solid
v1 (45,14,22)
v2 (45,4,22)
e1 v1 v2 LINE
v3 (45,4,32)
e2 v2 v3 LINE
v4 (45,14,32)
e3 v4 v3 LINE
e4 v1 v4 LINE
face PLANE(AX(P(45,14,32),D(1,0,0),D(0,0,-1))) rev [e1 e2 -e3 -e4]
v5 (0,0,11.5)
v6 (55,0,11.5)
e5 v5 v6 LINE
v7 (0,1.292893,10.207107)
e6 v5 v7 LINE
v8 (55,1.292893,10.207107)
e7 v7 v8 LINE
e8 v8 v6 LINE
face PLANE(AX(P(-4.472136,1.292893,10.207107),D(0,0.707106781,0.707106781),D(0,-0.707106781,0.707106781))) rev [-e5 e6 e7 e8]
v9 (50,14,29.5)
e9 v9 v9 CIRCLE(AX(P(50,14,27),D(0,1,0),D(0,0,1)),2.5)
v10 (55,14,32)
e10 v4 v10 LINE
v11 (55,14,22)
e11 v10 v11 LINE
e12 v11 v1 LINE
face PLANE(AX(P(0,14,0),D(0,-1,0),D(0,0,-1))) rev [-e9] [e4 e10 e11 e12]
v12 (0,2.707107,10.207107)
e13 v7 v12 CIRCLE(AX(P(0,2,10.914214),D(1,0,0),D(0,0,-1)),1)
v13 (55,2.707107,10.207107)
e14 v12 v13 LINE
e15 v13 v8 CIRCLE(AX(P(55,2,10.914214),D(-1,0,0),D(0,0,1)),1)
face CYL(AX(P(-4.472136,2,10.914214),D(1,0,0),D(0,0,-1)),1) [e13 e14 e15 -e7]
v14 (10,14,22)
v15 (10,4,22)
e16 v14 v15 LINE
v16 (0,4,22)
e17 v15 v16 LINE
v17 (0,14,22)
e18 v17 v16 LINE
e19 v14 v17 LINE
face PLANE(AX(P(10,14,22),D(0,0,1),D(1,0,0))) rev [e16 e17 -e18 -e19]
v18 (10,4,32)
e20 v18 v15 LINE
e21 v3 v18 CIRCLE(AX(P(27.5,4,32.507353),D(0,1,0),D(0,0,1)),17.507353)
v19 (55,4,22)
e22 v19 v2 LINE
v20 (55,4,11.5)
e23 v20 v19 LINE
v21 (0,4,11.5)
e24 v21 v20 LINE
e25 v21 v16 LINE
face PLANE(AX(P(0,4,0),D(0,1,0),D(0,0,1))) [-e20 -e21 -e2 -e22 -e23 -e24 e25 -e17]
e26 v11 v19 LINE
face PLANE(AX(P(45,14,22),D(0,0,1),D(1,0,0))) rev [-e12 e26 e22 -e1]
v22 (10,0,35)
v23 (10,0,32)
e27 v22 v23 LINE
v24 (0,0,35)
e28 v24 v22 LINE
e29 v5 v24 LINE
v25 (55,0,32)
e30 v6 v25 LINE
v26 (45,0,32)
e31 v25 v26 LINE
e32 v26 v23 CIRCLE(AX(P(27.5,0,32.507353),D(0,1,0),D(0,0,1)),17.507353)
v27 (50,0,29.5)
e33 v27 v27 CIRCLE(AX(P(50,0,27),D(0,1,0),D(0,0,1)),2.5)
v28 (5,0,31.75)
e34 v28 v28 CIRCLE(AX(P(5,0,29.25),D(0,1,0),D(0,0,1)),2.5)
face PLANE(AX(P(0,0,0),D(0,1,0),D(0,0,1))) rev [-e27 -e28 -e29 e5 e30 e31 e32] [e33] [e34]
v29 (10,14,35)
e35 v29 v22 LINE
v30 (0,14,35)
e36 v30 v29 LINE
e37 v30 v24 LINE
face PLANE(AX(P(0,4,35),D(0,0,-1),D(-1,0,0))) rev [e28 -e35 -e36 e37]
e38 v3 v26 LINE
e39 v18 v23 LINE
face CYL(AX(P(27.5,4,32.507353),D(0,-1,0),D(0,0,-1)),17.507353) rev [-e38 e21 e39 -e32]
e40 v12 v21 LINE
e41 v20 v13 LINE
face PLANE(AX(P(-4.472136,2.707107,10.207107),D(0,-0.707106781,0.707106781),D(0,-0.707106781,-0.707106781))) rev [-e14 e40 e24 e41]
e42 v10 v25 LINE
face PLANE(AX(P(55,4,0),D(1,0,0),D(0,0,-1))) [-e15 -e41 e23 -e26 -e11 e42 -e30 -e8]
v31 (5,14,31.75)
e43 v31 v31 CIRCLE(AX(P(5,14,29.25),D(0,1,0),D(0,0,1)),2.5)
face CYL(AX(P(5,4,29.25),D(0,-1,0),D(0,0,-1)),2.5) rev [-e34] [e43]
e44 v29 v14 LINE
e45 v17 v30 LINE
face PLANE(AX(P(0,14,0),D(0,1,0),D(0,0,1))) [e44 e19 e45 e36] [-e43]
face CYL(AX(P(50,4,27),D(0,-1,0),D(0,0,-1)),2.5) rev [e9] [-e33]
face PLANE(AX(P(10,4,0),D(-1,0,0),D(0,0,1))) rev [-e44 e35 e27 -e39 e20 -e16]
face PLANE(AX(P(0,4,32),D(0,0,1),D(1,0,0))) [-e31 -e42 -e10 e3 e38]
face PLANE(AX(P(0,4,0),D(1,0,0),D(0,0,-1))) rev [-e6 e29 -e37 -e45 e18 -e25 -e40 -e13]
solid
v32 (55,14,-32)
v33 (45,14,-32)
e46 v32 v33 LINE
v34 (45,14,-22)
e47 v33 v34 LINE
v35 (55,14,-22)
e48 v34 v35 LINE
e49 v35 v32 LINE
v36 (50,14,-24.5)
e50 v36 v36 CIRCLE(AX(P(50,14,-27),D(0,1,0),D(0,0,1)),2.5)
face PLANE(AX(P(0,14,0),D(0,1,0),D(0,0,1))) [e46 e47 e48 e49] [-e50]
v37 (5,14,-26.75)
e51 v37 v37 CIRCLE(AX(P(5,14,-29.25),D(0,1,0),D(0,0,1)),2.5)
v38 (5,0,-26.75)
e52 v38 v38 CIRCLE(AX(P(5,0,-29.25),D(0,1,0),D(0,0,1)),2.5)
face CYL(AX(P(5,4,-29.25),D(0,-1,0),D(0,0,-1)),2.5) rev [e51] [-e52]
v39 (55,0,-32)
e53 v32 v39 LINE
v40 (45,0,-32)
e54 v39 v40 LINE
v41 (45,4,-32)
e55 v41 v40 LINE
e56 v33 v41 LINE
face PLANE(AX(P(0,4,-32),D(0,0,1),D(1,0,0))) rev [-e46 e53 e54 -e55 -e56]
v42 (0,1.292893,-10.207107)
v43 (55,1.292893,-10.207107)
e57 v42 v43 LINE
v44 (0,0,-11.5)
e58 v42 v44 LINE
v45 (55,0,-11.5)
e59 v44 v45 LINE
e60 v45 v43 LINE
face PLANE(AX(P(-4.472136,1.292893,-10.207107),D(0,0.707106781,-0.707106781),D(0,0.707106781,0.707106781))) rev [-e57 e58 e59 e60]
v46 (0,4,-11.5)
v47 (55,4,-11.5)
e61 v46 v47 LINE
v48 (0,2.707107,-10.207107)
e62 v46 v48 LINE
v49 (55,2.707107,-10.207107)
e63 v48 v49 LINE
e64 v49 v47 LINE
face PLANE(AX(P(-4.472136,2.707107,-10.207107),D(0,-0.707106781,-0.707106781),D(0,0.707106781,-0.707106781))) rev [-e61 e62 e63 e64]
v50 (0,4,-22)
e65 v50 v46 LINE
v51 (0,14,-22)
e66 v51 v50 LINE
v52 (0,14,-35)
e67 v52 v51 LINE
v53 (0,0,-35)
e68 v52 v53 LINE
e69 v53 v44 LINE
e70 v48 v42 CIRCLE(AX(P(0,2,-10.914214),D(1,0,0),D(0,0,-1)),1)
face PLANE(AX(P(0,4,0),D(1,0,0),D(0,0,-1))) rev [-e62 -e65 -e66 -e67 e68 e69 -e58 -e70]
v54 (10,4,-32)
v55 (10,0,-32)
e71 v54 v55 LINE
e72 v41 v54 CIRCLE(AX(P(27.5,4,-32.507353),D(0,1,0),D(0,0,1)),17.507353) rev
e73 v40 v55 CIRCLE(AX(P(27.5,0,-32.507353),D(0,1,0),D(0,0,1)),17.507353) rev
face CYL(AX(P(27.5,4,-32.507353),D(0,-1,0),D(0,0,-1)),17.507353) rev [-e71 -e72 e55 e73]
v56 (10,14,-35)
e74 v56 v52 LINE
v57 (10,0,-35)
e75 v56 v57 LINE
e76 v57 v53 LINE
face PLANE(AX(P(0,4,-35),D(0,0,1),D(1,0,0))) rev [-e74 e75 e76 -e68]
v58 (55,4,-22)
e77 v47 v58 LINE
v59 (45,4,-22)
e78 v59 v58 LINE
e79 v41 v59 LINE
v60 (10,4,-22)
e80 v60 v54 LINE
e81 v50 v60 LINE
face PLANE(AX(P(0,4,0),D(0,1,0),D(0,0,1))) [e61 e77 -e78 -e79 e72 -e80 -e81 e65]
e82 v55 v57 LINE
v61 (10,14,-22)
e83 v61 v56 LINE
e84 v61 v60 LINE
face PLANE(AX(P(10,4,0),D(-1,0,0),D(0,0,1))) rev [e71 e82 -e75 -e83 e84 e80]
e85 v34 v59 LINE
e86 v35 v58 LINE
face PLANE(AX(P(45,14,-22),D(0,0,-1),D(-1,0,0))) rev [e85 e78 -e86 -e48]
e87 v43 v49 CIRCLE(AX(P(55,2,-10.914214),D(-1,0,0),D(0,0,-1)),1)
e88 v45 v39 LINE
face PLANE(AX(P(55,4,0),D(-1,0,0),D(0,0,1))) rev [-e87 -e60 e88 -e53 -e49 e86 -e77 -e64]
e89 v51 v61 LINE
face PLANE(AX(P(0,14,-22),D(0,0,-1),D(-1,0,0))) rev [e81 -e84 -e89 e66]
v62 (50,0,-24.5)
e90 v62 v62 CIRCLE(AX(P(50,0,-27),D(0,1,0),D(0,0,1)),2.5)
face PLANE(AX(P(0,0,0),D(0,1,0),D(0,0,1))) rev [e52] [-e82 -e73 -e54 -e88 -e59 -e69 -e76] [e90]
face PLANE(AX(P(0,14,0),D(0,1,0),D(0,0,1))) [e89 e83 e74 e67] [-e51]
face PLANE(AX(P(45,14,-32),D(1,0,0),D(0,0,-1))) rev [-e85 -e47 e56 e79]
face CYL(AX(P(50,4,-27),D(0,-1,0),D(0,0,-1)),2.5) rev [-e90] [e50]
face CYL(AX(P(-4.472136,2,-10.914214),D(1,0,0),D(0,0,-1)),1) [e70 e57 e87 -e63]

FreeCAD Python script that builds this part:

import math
import FreeCAD as App
import Part
import Sketcher

doc = App.newDocument("Part")
body = doc.addObject("PartDesign::Body", "Body")
body.AllowCompound = True

sketch1 = body.newObject("Sketcher::SketchObject", "Sketch")
sketch1.AttachmentSupport = (doc.getObject("XZ_Plane"), [""])
sketch1.MapMode = "FlatFace"
sketch1.addGeometry([
    Part.LineSegment(App.Vector(10, 10, 0), App.Vector(10, -10, 0)),
    Part.LineSegment(App.Vector(10, -10, 0), App.Vector(55, -10, 0)),
    Part.LineSegment(App.Vector(55, -10, 0), App.Vector(55, -32, 0)),
    Part.LineSegment(App.Vector(55, -32, 0), App.Vector(45, -32, 0)),
    Part.ArcOfCircle(Part.Circle(App.Vector(27.5, -32.5, 0), App.Vector(0, 0, 1), 17.5), math.radians(2), math.radians(178)),
    Part.LineSegment(App.Vector(10, -32, 0), App.Vector(10, -35, 0)),
    Part.LineSegment(App.Vector(10, -35, 0), App.Vector(0, -35, 0)),
    Part.LineSegment(App.Vector(0, -35, 0), App.Vector(0, 35, 0)),
    Part.LineSegment(App.Vector(0, 35, 0), App.Vector(10, 35, 0)),
    Part.LineSegment(App.Vector(10, 35, 0), App.Vector(10, 32, 0)),
    Part.ArcOfCircle(Part.Circle(App.Vector(27.5, 32.5, 0), App.Vector(0, 0, 1), 17.5), math.radians(-178), math.radians(-2)),
    Part.LineSegment(App.Vector(45, 32, 0), App.Vector(55, 32, 0)),
    Part.LineSegment(App.Vector(55, 32, 0), App.Vector(55, 10, 0)),
    Part.LineSegment(App.Vector(55, 10, 0), App.Vector(10, 10, 0)),
    Part.Circle(App.Vector(50, 27, 0), App.Vector(0, 0, 1), 2.5),
    Part.Circle(App.Vector(5, 29.2, 0), App.Vector(0, 0, 1), 2.5),
    Part.Circle(App.Vector(50, -27, 0), App.Vector(0, 0, 1), 2.5),
    Part.Circle(App.Vector(5, -29.2, 0), App.Vector(0, 0, 1), 2.5),
], False)
sketch1.addConstraint([
    Sketcher.Constraint("Coincident", 0, 2, 1, 1),
    Sketcher.Constraint("Coincident", 1, 2, 2, 1),
    Sketcher.Constraint("Coincident", 2, 2, 3, 1),
    Sketcher.Constraint("Coincident", 3, 2, 4, 1),
    Sketcher.Constraint("Coincident", 4, 2, 5, 1),
    Sketcher.Constraint("Coincident", 5, 2, 6, 1),
    Sketcher.Constraint("Coincident", 6, 2, 7, 1),
    Sketcher.Constraint("Coincident", 7, 2, 8, 1),
    Sketcher.Constraint("Coincident", 8, 2, 9, 1),
    Sketcher.Constraint("Coincident", 9, 2, 10, 1),
    Sketcher.Constraint("Coincident", 10, 2, 11, 1),
    Sketcher.Constraint("Coincident", 11, 2, 12, 1),
    Sketcher.Constraint("Coincident", 12, 2, 13, 1),
    Sketcher.Constraint("Coincident", 13, 2, 0, 1),
    Sketcher.Constraint("Vertical", 0),
    Sketcher.Constraint("Horizontal", 1),
    Sketcher.Constraint("Vertical", 2),
    Sketcher.Constraint("Horizontal", 3),
    Sketcher.Constraint("Vertical", 5),
    Sketcher.Constraint("Horizontal", 6),
    Sketcher.Constraint("Vertical", 7),
    Sketcher.Constraint("Horizontal", 8),
    Sketcher.Constraint("Vertical", 9),
    Sketcher.Constraint("Horizontal", 11),
    Sketcher.Constraint("Vertical", 12),
    Sketcher.Constraint("Horizontal", 13),
    Sketcher.Constraint("Equal", 4, 10),
    Sketcher.Constraint("Equal", 14, 15),
    Sketcher.Constraint("Equal", 15, 16),
    Sketcher.Constraint("Equal", 16, 17),
    Sketcher.Constraint("Symmetric", 6, 2, 7, 2, -1, 1),
    Sketcher.Constraint("Symmetric", 4, 3, 10, 3, -1),
    Sketcher.Constraint("Symmetric", 14, 3, 16, 3, -1),
    Sketcher.Constraint("Symmetric", 15, 3, 17, 3, -1),
    Sketcher.Constraint("Symmetric", 2, 2, 11, 2, -1),
    Sketcher.Constraint("Horizontal", 3, 2, 4, 2),
    Sketcher.Constraint("Horizontal", 9, 2, 10, 2),
    Sketcher.Constraint("Vertical", 0, 2, 4, 2),
    Sketcher.Constraint("Equal", 3, 6),
    Sketcher.Constraint("Equal", 2, 12),
    Sketcher.Constraint("Diameter", 14, 5.0),
    Sketcher.Constraint("DistanceX", 1, 1, 1, 2, 45.0),
    Sketcher.Constraint("DistanceX", 3, 2, 3, 1, 10.0),
    Sketcher.Constraint("DistanceY", 0, 2, 0, 1, 20.0),
    Sketcher.Constraint("DistanceY", 2, 2, 2, 1, 22.0),
    Sketcher.Constraint("DistanceY", 5, 2, 5, 1, 3.0),
    Sketcher.Constraint("DistanceX", -1, 1, 14, 3, 50.0),
    Sketcher.Constraint("DistanceY", -1, 1, 14, 3, 27.0),
    Sketcher.Constraint("DistanceX", -1, 1, 15, 3, 5.0),
    Sketcher.Constraint("DistanceY", 17, 3, 15, 3, 58.5),
    Sketcher.Constraint("Radius", 4, 17.507353),
])
pad1 = body.newObject("PartDesign::Pad", "Pad")
pad1.Profile = sketch1
pad1.Length = 4
pad1.Reversed = True

sketch2 = body.newObject("Sketcher::SketchObject", "Sketch001")
sketch2.AttachmentSupport = (doc.getObject("XZ_Plane"), [""])
sketch2.MapMode = "FlatFace"
sketch2.AttachmentOffset = App.Placement(App.Vector(0, 0, -4), App.Rotation())
sketch2.addGeometry([
    Part.LineSegment(App.Vector(45, 22, 0), App.Vector(45, 32, 0)),
    Part.LineSegment(App.Vector(45, 32, 0), App.Vector(55, 32, 0)),
    Part.LineSegment(App.Vector(55, 32, 0), App.Vector(55, 22, 0)),
    Part.LineSegment(App.Vector(55, 22, 0), App.Vector(45, 22, 0)),
    Part.Circle(App.Vector(50, 27, 0), App.Vector(0, 0, 1), 2.5),
    Part.LineSegment(App.Vector(45, -32, 0), App.Vector(45, -22, 0)),
    Part.LineSegment(App.Vector(45, -22, 0), App.Vector(55, -22, 0)),
    Part.LineSegment(App.Vector(55, -22, 0), App.Vector(55, -32, 0)),
    Part.LineSegment(App.Vector(55, -32, 0), App.Vector(45, -32, 0)),
    Part.Circle(App.Vector(50, -27, 0), App.Vector(0, 0, 1), 2.5),
    Part.LineSegment(App.Vector(0, -35, 0), App.Vector(0, -22, 0)),
    Part.LineSegment(App.Vector(0, -22, 0), App.Vector(10, -22, 0)),
    Part.LineSegment(App.Vector(10, -22, 0), App.Vector(10, -35, 0)),
    Part.LineSegment(App.Vector(10, -35, 0), App.Vector(0, -35, 0)),
    Part.Circle(App.Vector(5, -29.2, 0), App.Vector(0, 0, 1), 2.5),
    Part.LineSegment(App.Vector(0, 22, 0), App.Vector(0, 35, 0)),
    Part.LineSegment(App.Vector(0, 35, 0), App.Vector(10, 35, 0)),
    Part.LineSegment(App.Vector(10, 35, 0), App.Vector(10, 22, 0)),
    Part.LineSegment(App.Vector(10, 22, 0), App.Vector(0, 22, 0)),
    Part.Circle(App.Vector(5, 29.2, 0), App.Vector(0, 0, 1), 2.5),
], False)
sketch2.addConstraint([
    Sketcher.Constraint("Coincident", 0, 2, 1, 1),
    Sketcher.Constraint("Coincident", 1, 2, 2, 1),
    Sketcher.Constraint("Coincident", 2, 2, 3, 1),
    Sketcher.Constraint("Coincident", 3, 2, 0, 1),
    Sketcher.Constraint("Coincident", 5, 2, 6, 1),
    Sketcher.Constraint("Coincident", 6, 2, 7, 1),
    Sketcher.Constraint("Coincident", 7, 2, 8, 1),
    Sketcher.Constraint("Coincident", 8, 2, 5, 1),
    Sketcher.Constraint("Coincident", 10, 2, 11, 1),
    Sketcher.Constraint("Coincident", 11, 2, 12, 1),
    Sketcher.Constraint("Coincident", 12, 2, 13, 1),
    Sketcher.Constraint("Coincident", 13, 2, 10, 1),
    Sketcher.Constraint("Coincident", 15, 2, 16, 1),
    Sketcher.Constraint("Coincident", 16, 2, 17, 1),
    Sketcher.Constraint("Coincident", 17, 2, 18, 1),
    Sketcher.Constraint("Coincident", 18, 2, 15, 1),
    Sketcher.Constraint("Vertical", 0),
    Sketcher.Constraint("Horizontal", 1),
    Sketcher.Constraint("Vertical", 2),
    Sketcher.Constraint("Horizontal", 3),
    Sketcher.Constraint("Vertical", 5),
    Sketcher.Constraint("Horizontal", 6),
    Sketcher.Constraint("Vertical", 7),
    Sketcher.Constraint("Horizontal", 8),
    Sketcher.Constraint("Vertical", 10),
    Sketcher.Constraint("Horizontal", 11),
    Sketcher.Constraint("Vertical", 12),
    Sketcher.Constraint("Horizontal", 13),
    Sketcher.Constraint("Vertical", 15),
    Sketcher.Constraint("Horizontal", 16),
    Sketcher.Constraint("Vertical", 17),
    Sketcher.Constraint("Horizontal", 18),
    Sketcher.Constraint("Equal", 4, 9),
    Sketcher.Constraint("Equal", 9, 14),
    Sketcher.Constraint("Equal", 14, 19),
    Sketcher.Constraint("Symmetric", 13, 2, 15, 2, -1, 1),
    Sketcher.Constraint("Symmetric", 4, 3, 9, 3, -1),
    Sketcher.Constraint("Symmetric", 14, 3, 19, 3, -1),
    Sketcher.Constraint("Symmetric", 3, 2, 5, 2, -1),
    Sketcher.Constraint("Symmetric", 1, 2, 7, 2, -1),
    Sketcher.Constraint("Symmetric", 11, 2, 17, 2, -1),
    Sketcher.Constraint("PointOnObject", 10, 2, -2),
    Sketcher.Constraint("Horizontal", 6, 2, 10, 2),
    Sketcher.Constraint("Equal", 8, 11),
    Sketcher.Constraint("Equal", 18, 0),
    Sketcher.Constraint("Diameter", 4, 5.0),
    Sketcher.Constraint("DistanceX", 1, 1, 1, 2, 10.0),
    Sketcher.Constraint("DistanceY", 10, 1, 10, 2, 13.0),
    Sketcher.Constraint("DistanceX", -1, 1, 4, 3, 50.0),
    Sketcher.Constraint("DistanceY", -1, 1, 4, 3, 27.0),
    Sketcher.Constraint("DistanceX", -1, 1, 14, 3, 5.0),
    Sketcher.Constraint("DistanceX", -1, 1, 0, 2, 45.0),
    Sketcher.Constraint("DistanceY", -1, 1, 0, 2, 32.0),
    Sketcher.Constraint("DistanceY", 14, 3, 19, 3, 58.5),
])
pad2 = body.newObject("PartDesign::Pad", "Pad001")
pad2.Profile = sketch2
pad2.Length = 10
pad2.Reversed = True

sketch3 = body.newObject("Sketcher::SketchObject", "Sketch002")
sketch3.AttachmentSupport = (doc.getObject("XZ_Plane"), [""])
sketch3.MapMode = "FlatFace"
sketch3.AttachmentOffset = App.Placement(App.Vector(0, 0, -4), App.Rotation())
sketch3.addGeometry([
    Part.LineSegment(App.Vector(10, 9.5, 0), App.Vector(10, 10, 0)),
    Part.LineSegment(App.Vector(10, 10, 0), App.Vector(55, 10, 0)),
    Part.LineSegment(App.Vector(55, 10, 0), App.Vector(55, 9.5, 0)),
    Part.LineSegment(App.Vector(55, 9.5, 0), App.Vector(10, 9.5, 0)),
    Part.LineSegment(App.Vector(10, -10, 0), App.Vector(10, -9.5, 0)),
    Part.LineSegment(App.Vector(10, -9.5, 0), App.Vector(55, -9.5, 0)),
    Part.LineSegment(App.Vector(55, -9.5, 0), App.Vector(55, -10, 0)),
    Part.LineSegment(App.Vector(55, -10, 0), App.Vector(10, -10, 0)),
], False)
sketch3.addConstraint([
    Sketcher.Constraint("Coincident", 0, 2, 1, 1),
    Sketcher.Constraint("Coincident", 1, 2, 2, 1),
    Sketcher.Constraint("Coincident", 2, 2, 3, 1),
    Sketcher.Constraint("Coincident", 3, 2, 0, 1),
    Sketcher.Constraint("Coincident", 4, 2, 5, 1),
    Sketcher.Constraint("Coincident", 5, 2, 6, 1),
    Sketcher.Constraint("Coincident", 6, 2, 7, 1),
    Sketcher.Constraint("Coincident", 7, 2, 4, 1),
    Sketcher.Constraint("Vertical", 0),
    Sketcher.Constraint("Horizontal", 1),
    Sketcher.Constraint("Vertical", 2),
    Sketcher.Constraint("Horizontal", 3),
    Sketcher.Constraint("Vertical", 4),
    Sketcher.Constraint("Horizontal", 5),
    Sketcher.Constraint("Vertical", 6),
    Sketcher.Constraint("Horizontal", 7),
    Sketcher.Constraint("Symmetric", 3, 2, 4, 2, -1),
    Sketcher.Constraint("Symmetric", 1, 2, 6, 2, -1),
    Sketcher.Constraint("DistanceX", 1, 1, 1, 2, 45.0),
    Sketcher.Constraint("DistanceY", 0, 1, 0, 2, 0.5),
    Sketcher.Constraint("DistanceX", -1, 1, 0, 2, 10.0),
    Sketcher.Constraint("DistanceY", -1, 1, 0, 2, 10.0),
])
pad3 = body.newObject("PartDesign::Pad", "Pad002")
pad3.Profile = sketch3
pad3.Length = 4

sketch4 = body.newObject("Sketcher::SketchObject", "Sketch003")
sketch4.AttachmentSupport = (doc.getObject("YZ_Plane"), [""])
sketch4.MapMode = "FlatFace"
sketch4.AttachmentOffset = App.Placement(App.Vector(0, 0, 55), App.Rotation())
sketch4.addGeometry([
    Part.LineSegment(App.Vector(4, 11.5, 0), App.Vector(2.7, 10.2, 0)),
    Part.ArcOfCircle(Part.Circle(App.Vector(2, 10.9, 0), App.Vector(0, 0, 1), 1), math.radians(-135), math.radians(-45)),
    Part.LineSegment(App.Vector(1.3, 10.2, 0), App.Vector(0, 11.5, 0)),
    Part.LineSegment(App.Vector(0, 11.5, 0), App.Vector(0, 9.5, 0)),
    Part.LineSegment(App.Vector(0, 9.5, 0), App.Vector(4, 9.5, 0)),
    Part.LineSegment(App.Vector(4, 9.5, 0), App.Vector(4, 11.5, 0)),
    Part.LineSegment(App.Vector(2.7, -10.2, 0), App.Vector(4, -11.5, 0)),
    Part.LineSegment(App.Vector(4, -11.5, 0), App.Vector(4, -9.5, 0)),
    Part.LineSegment(App.Vector(4, -9.5, 0), App.Vector(0, -9.5, 0)),
    Part.LineSegment(App.Vector(0, -9.5, 0), App.Vector(0, -11.5, 0)),
    Part.LineSegment(App.Vector(0, -11.5, 0), App.Vector(1.3, -10.2, 0)),
    Part.ArcOfCircle(Part.Circle(App.Vector(2, -10.9, 0), App.Vector(0, 0, 1), 1), math.radians(45), math.radians(135)),
], False)
sketch4.addConstraint([
    Sketcher.Constraint("Tangent", 0, 2, 1, 2),
    Sketcher.Constraint("Tangent", 1, 1, 2, 1),
    Sketcher.Constraint("Coincident", 2, 2, 3, 1),
    Sketcher.Constraint("Coincident", 3, 2, 4, 1),
    Sketcher.Constraint("Coincident", 4, 2, 5, 1),
    Sketcher.Constraint("Coincident", 5, 2, 0, 1),
    Sketcher.Constraint("Coincident", 6, 2, 7, 1),
    Sketcher.Constraint("Coincident", 7, 2, 8, 1),
    Sketcher.Constraint("Coincident", 8, 2, 9, 1),
    Sketcher.Constraint("Coincident", 9, 2, 10, 1),
    Sketcher.Constraint("Tangent", 10, 2, 11, 2),
    Sketcher.Constraint("Tangent", 11, 1, 6, 1),
    Sketcher.Constraint("Vertical", 3),
    Sketcher.Constraint("Horizontal", 4),
    Sketcher.Constraint("Vertical", 5),
    Sketcher.Constraint("Vertical", 7),
    Sketcher.Constraint("Horizontal", 8),
    Sketcher.Constraint("Vertical", 9),
    Sketcher.Constraint("Equal", 1, 11),
    Sketcher.Constraint("Symmetric", 3, 2, 8, 2, -1, 1),
    Sketcher.Constraint("Symmetric", 1, 3, 11, 3, -1),
    Sketcher.Constraint("Symmetric", 5, 2, 6, 2, -1),
    Sketcher.Constraint("Symmetric", 2, 2, 9, 2, -1),
    Sketcher.Constraint("Perpendicular", 0, 2),
    Sketcher.Constraint("Parallel", 2, 6),
    Sketcher.Constraint("Horizontal", 2, 2, 5, 2),
    Sketcher.Constraint("Radius", 1, 1.0),
    Sketcher.Constraint("DistanceX", 4, 1, 4, 2, 4.0),
    Sketcher.Constraint("DistanceY", 3, 2, 3, 1, 2.0),
    Sketcher.Constraint("DistanceY", 6, 2, 4, 2, 21.0),
])
pocket1 = body.newObject("PartDesign::Pocket", "Pocket")
pocket1.Profile = sketch4
pocket1.Length = 55

sketch5 = body.newObject("Sketcher::SketchObject", "Sketch004")
sketch5.AttachmentSupport = (doc.getObject("XZ_Plane"), [""])
sketch5.MapMode = "FlatFace"
sketch5.AttachmentOffset = App.Placement(App.Vector(0, 0, -4), App.Rotation())
sketch5.addGeometry([
    Part.LineSegment(App.Vector(0, -10, 0), App.Vector(0, 10, 0)),
    Part.LineSegment(App.Vector(0, 10, 0), App.Vector(10, 10, 0)),
    Part.LineSegment(App.Vector(10, 10, 0), App.Vector(10, -10, 0)),
    Part.LineSegment(App.Vector(10, -10, 0), App.Vector(0, -10, 0)),
], False)
sketch5.addConstraint([
    Sketcher.Constraint("Coincident", 0, 2, 1, 1),
    Sketcher.Constraint("Coincident", 1, 2, 2, 1),
    Sketcher.Constraint("Coincident", 2, 2, 3, 1),
    Sketcher.Constraint("Coincident", 3, 2, 0, 1),
    Sketcher.Constraint("Vertical", 0),
    Sketcher.Constraint("Horizontal", 1),
    Sketcher.Constraint("Vertical", 2),
    Sketcher.Constraint("Horizontal", 3),
    Sketcher.Constraint("Symmetric", 0, 2, 3, 2, -1, 1),
    Sketcher.Constraint("DistanceX", 1, 1, 1, 2, 10.0),
    Sketcher.Constraint("DistanceY", 0, 1, 0, 2, 19.0),
])
pocket2 = body.newObject("PartDesign::Pocket", "Pocket001")
pocket2.Profile = sketch5
pocket2.Length = 10
pocket2.Reversed = True

doc.recompute()
